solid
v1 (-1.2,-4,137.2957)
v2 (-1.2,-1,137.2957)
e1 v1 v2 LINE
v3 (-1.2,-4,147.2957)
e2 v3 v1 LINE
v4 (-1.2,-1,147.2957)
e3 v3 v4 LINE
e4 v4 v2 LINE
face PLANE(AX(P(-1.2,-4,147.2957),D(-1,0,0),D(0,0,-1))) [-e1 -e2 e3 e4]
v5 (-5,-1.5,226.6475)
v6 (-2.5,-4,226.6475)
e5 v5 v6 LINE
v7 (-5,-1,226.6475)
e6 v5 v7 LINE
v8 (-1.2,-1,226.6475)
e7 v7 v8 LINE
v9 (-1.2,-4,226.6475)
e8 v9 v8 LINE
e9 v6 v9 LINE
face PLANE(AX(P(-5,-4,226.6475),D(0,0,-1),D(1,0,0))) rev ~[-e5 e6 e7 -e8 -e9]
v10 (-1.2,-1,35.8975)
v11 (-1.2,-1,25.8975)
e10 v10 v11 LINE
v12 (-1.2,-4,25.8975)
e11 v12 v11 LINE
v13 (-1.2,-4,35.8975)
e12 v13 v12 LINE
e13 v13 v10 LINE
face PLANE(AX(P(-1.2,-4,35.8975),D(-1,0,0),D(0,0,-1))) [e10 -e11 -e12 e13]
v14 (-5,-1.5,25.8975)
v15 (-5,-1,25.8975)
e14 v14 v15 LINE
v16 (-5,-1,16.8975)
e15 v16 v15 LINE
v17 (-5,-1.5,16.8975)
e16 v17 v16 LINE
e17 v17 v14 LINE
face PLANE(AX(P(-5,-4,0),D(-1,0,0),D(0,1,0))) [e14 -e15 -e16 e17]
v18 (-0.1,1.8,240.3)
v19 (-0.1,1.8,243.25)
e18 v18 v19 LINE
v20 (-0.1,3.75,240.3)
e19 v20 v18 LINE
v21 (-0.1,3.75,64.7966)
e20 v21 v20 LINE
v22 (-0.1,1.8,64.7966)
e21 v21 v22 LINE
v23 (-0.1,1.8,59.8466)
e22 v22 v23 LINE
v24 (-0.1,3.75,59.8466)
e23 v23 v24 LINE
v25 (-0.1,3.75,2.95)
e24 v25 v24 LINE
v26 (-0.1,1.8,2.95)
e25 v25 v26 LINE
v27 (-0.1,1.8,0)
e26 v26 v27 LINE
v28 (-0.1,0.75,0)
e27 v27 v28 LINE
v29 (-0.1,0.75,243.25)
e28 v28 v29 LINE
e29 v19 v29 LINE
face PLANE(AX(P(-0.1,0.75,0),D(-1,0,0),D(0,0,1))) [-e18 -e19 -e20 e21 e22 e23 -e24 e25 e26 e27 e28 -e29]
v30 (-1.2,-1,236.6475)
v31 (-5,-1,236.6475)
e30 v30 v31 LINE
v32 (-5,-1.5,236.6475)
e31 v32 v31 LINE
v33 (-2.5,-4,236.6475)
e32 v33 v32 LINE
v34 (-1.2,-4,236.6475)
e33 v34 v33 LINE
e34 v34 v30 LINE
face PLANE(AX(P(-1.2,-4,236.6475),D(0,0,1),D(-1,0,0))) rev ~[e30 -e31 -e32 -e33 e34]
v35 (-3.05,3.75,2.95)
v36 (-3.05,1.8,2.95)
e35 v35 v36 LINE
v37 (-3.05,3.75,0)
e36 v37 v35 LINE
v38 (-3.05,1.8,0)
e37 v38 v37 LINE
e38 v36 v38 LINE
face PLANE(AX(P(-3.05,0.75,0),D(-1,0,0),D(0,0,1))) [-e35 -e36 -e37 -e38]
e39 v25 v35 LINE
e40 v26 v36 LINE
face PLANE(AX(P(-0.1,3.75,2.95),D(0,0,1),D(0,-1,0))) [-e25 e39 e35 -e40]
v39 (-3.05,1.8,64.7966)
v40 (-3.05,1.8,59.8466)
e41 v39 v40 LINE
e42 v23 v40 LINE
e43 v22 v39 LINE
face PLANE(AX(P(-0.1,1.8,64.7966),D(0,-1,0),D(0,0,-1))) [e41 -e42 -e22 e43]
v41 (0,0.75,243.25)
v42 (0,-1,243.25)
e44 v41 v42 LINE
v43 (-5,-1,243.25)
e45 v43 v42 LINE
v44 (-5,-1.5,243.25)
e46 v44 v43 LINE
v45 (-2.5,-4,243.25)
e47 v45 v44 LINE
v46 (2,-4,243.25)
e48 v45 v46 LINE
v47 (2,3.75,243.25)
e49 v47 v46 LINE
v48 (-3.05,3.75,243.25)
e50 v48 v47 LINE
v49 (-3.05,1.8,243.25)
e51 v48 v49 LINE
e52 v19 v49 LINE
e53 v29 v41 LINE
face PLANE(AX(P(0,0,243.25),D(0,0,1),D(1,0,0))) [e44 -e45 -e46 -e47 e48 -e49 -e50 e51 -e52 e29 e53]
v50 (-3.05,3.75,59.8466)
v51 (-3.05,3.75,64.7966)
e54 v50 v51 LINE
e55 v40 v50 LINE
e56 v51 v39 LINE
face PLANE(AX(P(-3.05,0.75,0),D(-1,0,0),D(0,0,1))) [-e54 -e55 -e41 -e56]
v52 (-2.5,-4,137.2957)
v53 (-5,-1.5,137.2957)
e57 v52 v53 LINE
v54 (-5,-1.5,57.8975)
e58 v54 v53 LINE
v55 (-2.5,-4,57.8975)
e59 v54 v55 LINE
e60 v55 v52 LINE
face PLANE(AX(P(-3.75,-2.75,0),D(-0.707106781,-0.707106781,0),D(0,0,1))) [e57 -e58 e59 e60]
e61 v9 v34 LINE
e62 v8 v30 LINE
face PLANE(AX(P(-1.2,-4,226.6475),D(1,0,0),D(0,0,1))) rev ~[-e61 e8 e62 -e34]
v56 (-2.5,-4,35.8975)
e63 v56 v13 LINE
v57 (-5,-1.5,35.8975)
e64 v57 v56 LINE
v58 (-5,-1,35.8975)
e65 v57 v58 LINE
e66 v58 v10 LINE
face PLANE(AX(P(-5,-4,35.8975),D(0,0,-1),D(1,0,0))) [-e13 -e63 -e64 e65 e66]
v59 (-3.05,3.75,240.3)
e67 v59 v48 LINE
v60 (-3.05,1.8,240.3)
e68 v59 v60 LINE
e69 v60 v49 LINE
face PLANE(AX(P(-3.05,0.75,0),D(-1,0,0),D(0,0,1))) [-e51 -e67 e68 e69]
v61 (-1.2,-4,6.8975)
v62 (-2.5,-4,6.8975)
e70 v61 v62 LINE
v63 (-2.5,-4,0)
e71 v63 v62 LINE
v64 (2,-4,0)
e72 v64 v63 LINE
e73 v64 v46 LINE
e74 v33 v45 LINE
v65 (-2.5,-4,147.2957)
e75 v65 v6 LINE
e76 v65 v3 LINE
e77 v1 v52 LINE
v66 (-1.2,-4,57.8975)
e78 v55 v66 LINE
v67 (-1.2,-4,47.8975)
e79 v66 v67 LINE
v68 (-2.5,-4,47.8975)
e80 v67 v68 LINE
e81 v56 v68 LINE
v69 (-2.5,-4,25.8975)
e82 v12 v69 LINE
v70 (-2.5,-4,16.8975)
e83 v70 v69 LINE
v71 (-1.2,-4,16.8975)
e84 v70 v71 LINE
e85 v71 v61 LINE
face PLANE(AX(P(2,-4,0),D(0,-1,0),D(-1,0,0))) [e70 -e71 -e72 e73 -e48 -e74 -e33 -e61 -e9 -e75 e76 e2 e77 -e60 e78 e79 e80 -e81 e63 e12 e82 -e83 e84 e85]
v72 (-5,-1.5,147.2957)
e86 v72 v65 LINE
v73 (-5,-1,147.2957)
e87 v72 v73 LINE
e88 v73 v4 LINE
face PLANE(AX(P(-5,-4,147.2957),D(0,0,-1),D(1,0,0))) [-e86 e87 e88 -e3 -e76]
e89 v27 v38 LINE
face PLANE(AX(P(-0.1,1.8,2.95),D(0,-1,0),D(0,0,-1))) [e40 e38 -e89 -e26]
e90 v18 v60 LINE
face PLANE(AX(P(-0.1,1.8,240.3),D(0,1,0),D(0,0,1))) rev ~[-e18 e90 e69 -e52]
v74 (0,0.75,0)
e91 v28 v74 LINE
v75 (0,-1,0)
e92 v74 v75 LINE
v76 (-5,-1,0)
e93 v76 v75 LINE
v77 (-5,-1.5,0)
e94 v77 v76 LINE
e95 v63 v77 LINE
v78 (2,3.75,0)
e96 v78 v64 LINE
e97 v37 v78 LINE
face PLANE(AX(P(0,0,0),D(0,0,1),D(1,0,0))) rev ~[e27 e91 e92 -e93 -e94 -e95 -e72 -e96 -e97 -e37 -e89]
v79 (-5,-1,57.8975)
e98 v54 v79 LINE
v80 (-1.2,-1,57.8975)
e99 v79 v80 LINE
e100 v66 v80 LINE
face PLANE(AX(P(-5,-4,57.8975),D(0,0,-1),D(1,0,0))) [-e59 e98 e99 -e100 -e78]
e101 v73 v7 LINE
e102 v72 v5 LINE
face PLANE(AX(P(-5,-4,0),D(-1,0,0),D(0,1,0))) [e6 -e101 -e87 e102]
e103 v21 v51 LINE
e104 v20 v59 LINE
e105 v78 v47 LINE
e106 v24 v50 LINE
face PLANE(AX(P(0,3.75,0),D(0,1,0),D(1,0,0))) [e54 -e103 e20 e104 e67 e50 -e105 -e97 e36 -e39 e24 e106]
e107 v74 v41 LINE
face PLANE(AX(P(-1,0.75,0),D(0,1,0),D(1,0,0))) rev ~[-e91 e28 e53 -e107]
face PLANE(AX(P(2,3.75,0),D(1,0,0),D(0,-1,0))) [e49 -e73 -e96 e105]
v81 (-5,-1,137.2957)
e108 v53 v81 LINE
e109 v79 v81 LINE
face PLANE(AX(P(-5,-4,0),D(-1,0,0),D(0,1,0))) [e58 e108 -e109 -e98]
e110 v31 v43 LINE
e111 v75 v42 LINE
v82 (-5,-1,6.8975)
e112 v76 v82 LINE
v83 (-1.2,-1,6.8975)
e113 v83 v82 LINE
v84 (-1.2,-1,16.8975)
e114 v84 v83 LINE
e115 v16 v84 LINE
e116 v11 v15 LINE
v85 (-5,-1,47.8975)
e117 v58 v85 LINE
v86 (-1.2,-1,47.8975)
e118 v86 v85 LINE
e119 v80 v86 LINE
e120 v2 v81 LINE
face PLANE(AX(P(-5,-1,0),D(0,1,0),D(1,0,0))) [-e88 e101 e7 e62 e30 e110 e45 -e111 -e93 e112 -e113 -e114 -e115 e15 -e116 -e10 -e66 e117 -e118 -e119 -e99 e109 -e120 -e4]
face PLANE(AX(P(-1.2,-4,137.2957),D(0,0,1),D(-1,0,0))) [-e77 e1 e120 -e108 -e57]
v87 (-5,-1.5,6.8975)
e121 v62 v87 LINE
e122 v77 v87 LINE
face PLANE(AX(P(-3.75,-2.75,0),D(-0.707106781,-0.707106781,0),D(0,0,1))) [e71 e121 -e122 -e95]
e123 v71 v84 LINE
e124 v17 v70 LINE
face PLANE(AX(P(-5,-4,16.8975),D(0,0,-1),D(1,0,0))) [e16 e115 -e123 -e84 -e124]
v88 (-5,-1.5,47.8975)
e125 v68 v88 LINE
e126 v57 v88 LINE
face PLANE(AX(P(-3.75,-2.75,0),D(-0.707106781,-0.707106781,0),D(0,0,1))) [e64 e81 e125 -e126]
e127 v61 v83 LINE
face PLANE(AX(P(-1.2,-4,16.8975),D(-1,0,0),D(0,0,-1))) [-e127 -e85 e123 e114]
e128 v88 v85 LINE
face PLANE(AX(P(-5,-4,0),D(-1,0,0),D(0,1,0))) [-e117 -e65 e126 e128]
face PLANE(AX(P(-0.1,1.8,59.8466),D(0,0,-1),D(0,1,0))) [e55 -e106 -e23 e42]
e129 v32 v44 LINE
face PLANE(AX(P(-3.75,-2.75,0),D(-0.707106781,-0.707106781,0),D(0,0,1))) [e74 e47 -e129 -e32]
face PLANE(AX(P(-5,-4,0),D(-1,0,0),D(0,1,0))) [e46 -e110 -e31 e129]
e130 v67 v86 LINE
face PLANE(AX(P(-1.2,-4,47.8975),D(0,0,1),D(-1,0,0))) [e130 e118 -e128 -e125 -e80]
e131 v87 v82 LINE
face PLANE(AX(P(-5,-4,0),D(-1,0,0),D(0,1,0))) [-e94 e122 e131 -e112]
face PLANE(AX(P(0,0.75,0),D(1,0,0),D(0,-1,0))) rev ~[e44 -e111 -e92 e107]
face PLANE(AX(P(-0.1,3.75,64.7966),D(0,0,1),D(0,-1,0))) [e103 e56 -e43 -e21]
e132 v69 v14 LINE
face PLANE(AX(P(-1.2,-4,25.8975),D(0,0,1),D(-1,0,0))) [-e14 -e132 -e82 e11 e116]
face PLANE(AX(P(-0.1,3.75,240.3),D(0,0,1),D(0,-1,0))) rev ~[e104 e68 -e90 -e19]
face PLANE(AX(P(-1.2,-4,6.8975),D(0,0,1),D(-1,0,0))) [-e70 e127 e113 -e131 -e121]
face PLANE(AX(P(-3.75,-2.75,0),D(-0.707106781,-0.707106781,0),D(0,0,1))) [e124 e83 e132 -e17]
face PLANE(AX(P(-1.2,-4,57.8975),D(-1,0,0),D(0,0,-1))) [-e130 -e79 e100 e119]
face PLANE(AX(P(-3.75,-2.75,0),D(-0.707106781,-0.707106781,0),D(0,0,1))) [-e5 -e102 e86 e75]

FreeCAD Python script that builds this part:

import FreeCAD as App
import Part
import Sketcher
from FreeCAD import Vector


def edges_at(feature, points):
    """Names of the edges that pass closest to the given points."""
    edges = feature.Shape.Edges
    near = lambda p: min(range(len(edges)), key=lambda i: edges[i].distToShape(Part.Vertex(*p))[0])
    return sorted({f"Edge{near(p) + 1}" for p in points})


def add_polygon(sketch, points):
    """Adds a closed chain of lines whose ends are joined by coincident constraints."""
    first, n = sketch.GeometryCount, len(points)
    for a, b in zip(points, points[1:] + points[:1]):
        sketch.addGeometry(Part.LineSegment(App.Vector(*a, 0), App.Vector(*b, 0)), False)
    for i in range(n):
        sketch.addConstraint(Sketcher.Constraint("Coincident", first + i, 2, first + (i + 1) % n, 1))

doc = App.newDocument("Part")
body = doc.addObject("PartDesign::Body", "Body")

sketch1 = body.newObject("Sketcher::SketchObject", "Sketch")
sketch1.AttachmentSupport = (doc.getObject("XY_Plane"), [""])
sketch1.MapMode = "FlatFace"
add_polygon(sketch1, [(2, 3.8), (-1, 3.8), (-1, 0.8), (0, 0.8), (0, -1), (-5, -1), (-5, -4), (2, -4)])
sketch1.addConstraint([
    Sketcher.Constraint("Horizontal", 0),
    Sketcher.Constraint("Vertical", 1),
    Sketcher.Constraint("Horizontal", 2),
    Sketcher.Constraint("Vertical", 3),
    Sketcher.Constraint("Horizontal", 4),
    Sketcher.Constraint("Vertical", 5),
    Sketcher.Constraint("Horizontal", 6),
    Sketcher.Constraint("Vertical", 7),
    Sketcher.Constraint("PointOnObject", 2, 2, -2),
    Sketcher.Constraint("Equal", 0, 1),
    Sketcher.Constraint("Equal", 1, 5),
    Sketcher.Constraint("DistanceX", 0, 2, 0, 1, 3.0),
    Sketcher.Constraint("DistanceX", 4, 2, 4, 1, 5.0),
    Sketcher.Constraint("DistanceY", 5, 2, -1, 1, 4.0),
    Sketcher.Constraint("DistanceX", -1, 1, 6, 2, 2.0),
    Sketcher.Constraint("DistanceY", 3, 2, 3, 1, 1.75),
])
pad1 = body.newObject("PartDesign::Pad", "Pad")
pad1.Profile = sketch1
pad1.Length = 243.25

sketch2 = body.newObject("Sketcher::SketchObject", "Sketch001")
sketch2.AttachmentSupport = (doc.getObject("YZ_Plane"), [""])
sketch2.MapMode = "FlatFace"
sketch2.AttachmentOffset = App.Placement(Vector(0, 0, -1), App.Rotation())
add_polygon(sketch2, [(3.8, 243.2), (3.8, 0), (0.8, 0), (0.8, 243.2)])
sketch2.addConstraint([
    Sketcher.Constraint("Vertical", 0),
    Sketcher.Constraint("Horizontal", 1),
    Sketcher.Constraint("Vertical", 2),
    Sketcher.Constraint("Horizontal", 3),
    Sketcher.Constraint("PointOnObject", 0, 2, -1),
    Sketcher.Constraint("DistanceX", 1, 2, 1, 1, 3.0),
    Sketcher.Constraint("DistanceY", 0, 2, 0, 1, 243.25),
    Sketcher.Constraint("DistanceX", -1, 1, 0, 2, 3.75),
])
pocket1 = body.newObject("PartDesign::Pocket", "Pocket")
pocket1.Profile = sketch2
pocket1.Length = 0.9
pocket1.Reversed = True
doc.recompute()

chamfer = body.newObject("PartDesign::Chamfer", "Chamfer")
chamfer.Base = (pocket1, edges_at(pocket1, [(-5, -4, 121.625)]))
chamfer.Size = 2.5

sketch3 = body.newObject("Sketcher::SketchObject", "Sketch002")
sketch3.AttachmentSupport = (doc.getObject("YZ_Plane"), [""])
sketch3.MapMode = "FlatFace"
sketch3.AttachmentOffset = App.Placement(Vector(0, 0, -0.1), App.Rotation())
add_polygon(sketch3, [(3.8, 243.2), (3.8, 240.3), (1.8, 240.3), (1.8, 243.2)])
add_polygon(sketch3, [(3.8, 64.8), (3.8, 59.8), (1.8, 59.8), (1.8, 64.8)])
add_polygon(sketch3, [(3.8, 3), (3.8, 0), (1.8, 0), (1.8, 3)])
sketch3.addConstraint([
    Sketcher.Constraint("Vertical", 0),
    Sketcher.Constraint("Horizontal", 1),
    Sketcher.Constraint("Vertical", 2),
    Sketcher.Constraint("Horizontal", 3),
    Sketcher.Constraint("Vertical", 4),
    Sketcher.Constraint("Horizontal", 5),
    Sketcher.Constraint("Vertical", 6),
    Sketcher.Constraint("Horizontal", 7),
    Sketcher.Constraint("Vertical", 8),
    Sketcher.Constraint("Horizontal", 9),
    Sketcher.Constraint("Vertical", 10),
    Sketcher.Constraint("Horizontal", 11),
    Sketcher.Constraint("PointOnObject", 8, 2, -1),
    Sketcher.Constraint("Vertical", 3, 2, 4, 2),
    Sketcher.Constraint("Vertical", 2, 2, 5, 2),
    Sketcher.Constraint("Vertical", 7, 2, 8, 2),
    Sketcher.Constraint("Vertical", 6, 2, 9, 2),
    Sketcher.Constraint("Equal", 2, 8),
    Sketcher.Constraint("DistanceX", 1, 2, 1, 1, 1.95),
    Sketcher.Constraint("DistanceY", 0, 2, 0, 1, 2.95),
    Sketcher.Constraint("DistanceY", 4, 2, 4, 1, 4.95),
    Sketcher.Constraint("DistanceY", -1, 1, 0, 2, 240.3),
    Sketcher.Constraint("DistanceX", -1, 1, 1, 2, 1.8),
    Sketcher.Constraint("DistanceY", -1, 1, 4, 2, 59.8466),
])
pad2 = body.newObject("PartDesign::Pad", "Pad001")
pad2.Profile = sketch3
pad2.Length = 2.95
pad2.Reversed = True

sketch4 = body.newObject("Sketcher::SketchObject", "Sketch003")
sketch4.AttachmentSupport = (doc.getObject("XZ_Plane"), [""])
sketch4.MapMode = "FlatFace"
sketch4.AttachmentOffset = App.Placement(Vector(0, 0, 4), App.Rotation())
add_polygon(sketch4, [(-5, 236.6), (-5, 226.6), (-1.2, 226.6), (-1.2, 236.6)])
add_polygon(sketch4, [(-5, 147.3), (-5, 137.3), (-1.2, 137.3), (-1.2, 147.3)])
add_polygon(sketch4, [(-5, 57.9), (-5, 47.9), (-1.2, 47.9), (-1.2, 57.9)])
add_polygon(sketch4, [(-5, 35.9), (-5, 25.9), (-1.2, 25.9), (-1.2, 35.9)])
add_polygon(sketch4, [(-5, 6.9), (-1.2, 6.9), (-1.2, 16.9), (-5, 16.9)])
sketch4.addConstraint([
    Sketcher.Constraint("Vertical", 0),
    Sketcher.Constraint("Horizontal", 1),
    Sketcher.Constraint("Vertical", 2),
    Sketcher.Constraint("Horizontal", 3),
    Sketcher.Constraint("Vertical", 4),
    Sketcher.Constraint("Horizontal", 5),
    Sketcher.Constraint("Vertical", 6),
    Sketcher.Constraint("Horizontal", 7),
    Sketcher.Constraint("Vertical", 8),
    Sketcher.Constraint("Horizontal", 9),
    Sketcher.Constraint("Vertical", 10),
    Sketcher.Constraint("Horizontal", 11),
    Sketcher.Constraint("Vertical", 12),
    Sketcher.Constraint("Horizontal", 13),
    Sketcher.Constraint("Vertical", 14),
    Sketcher.Constraint("Horizontal", 15),
    Sketcher.Constraint("Horizontal", 16),
    Sketcher.Constraint("Vertical", 17),
    Sketcher.Constraint("Horizontal", 18),
    Sketcher.Constraint("Vertical", 19),
    Sketcher.Constraint("Vertical", 3, 2, 4, 2),
    Sketcher.Constraint("Vertical", 2, 2, 5, 2),
    Sketcher.Constraint("Vertical", 7, 2, 8, 2),
    Sketcher.Constraint("Vertical", 6, 2, 9, 2),
    Sketcher.Constraint("Vertical", 11, 2, 12, 2),
    Sketcher.Constraint("Vertical", 10, 2, 13, 2),
    Sketcher.Constraint("Vertical", 14, 2, 16, 2),
    Sketcher.Constraint("Vertical", 15, 2, 18, 2),
    Sketcher.Constraint("Equal", 2, 4),
    Sketcher.Constraint("Equal", 6, 8),
    Sketcher.Constraint("Equal", 10, 12),
    Sketcher.Constraint("Equal", 14, 17),
    Sketcher.Constraint("DistanceY", 0, 2, 0, 1, 10.0),
    Sketcher.Constraint("DistanceX", 1, 1, 1, 2, 3.8),
    Sketcher.Constraint("DistanceX", 0, 2, -1, 1, 5.0),
    Sketcher.Constraint("DistanceY", 12, 2, 8, 2, 22.0),
    Sketcher.Constraint("DistanceY", 16, 2, 13, 2, 19.0),
    Sketcher.Constraint("DistanceY", 8, 2, 0, 2, 178.75),
    Sketcher.Constraint("DistanceY", -1, 1, 0, 2, 226.6475),
    Sketcher.Constraint("DistanceY", -1, 1, 4, 2, 137.2957),
])
pocket2 = body.newObject("PartDesign::Pocket", "Pocket001")
pocket2.Profile = sketch4
pocket2.Length = 3

doc.recompute()
